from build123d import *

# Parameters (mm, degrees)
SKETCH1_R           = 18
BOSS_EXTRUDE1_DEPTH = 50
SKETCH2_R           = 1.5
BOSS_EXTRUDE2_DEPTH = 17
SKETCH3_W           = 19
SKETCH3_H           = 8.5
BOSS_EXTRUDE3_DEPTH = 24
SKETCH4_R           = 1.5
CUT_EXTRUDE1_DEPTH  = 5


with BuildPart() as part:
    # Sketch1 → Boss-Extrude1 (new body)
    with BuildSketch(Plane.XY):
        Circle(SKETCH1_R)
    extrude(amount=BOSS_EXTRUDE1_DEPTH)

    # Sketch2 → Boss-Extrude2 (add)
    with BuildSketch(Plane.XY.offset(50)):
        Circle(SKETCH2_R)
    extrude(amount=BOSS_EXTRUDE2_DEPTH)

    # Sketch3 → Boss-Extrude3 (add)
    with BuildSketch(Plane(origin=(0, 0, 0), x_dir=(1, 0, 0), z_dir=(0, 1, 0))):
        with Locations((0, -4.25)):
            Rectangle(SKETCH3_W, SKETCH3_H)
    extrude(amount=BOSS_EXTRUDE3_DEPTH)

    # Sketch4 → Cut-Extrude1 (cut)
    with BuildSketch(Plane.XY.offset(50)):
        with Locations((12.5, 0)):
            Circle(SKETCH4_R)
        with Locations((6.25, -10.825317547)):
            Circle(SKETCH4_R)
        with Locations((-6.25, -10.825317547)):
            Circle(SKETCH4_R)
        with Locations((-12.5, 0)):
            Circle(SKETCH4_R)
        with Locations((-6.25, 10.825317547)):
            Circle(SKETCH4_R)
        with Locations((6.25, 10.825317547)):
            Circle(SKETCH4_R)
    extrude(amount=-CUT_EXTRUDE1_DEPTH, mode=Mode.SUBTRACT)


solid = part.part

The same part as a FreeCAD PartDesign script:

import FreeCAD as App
import Part
import Sketcher
Q = App.Units.Quantity

doc = App.newDocument("Part")
body = doc.addObject("PartDesign::Body", "Body")

# Sketch on XY plane
sketch1 = body.newObject("Sketcher::SketchObject", "Sketch")
sketch1.AttachmentSupport = (doc.getObject("XY_Plane"), [""])
sketch1.MapMode = "FlatFace"
sketch1.addGeometry(Part.Circle(App.Vector(0, 0, 0), App.Vector(0, 0, 1), 18), False)
sketch1.addConstraint(Sketcher.Constraint("Coincident", 0, 3, -1, 1))
sketch1.addConstraint(Sketcher.Constraint("Diameter", 0, Q("36 mm")))
pad1 = body.newObject("PartDesign::Pad", "Pad")
pad1.Profile = sketch1
pad1.Length = 50

# Sketch on XY plane
sketch2 = body.newObject("Sketcher::SketchObject", "Sketch001")
sketch2.AttachmentSupport = (doc.getObject("XY_Plane"), [""])
sketch2.MapMode = "FlatFace"
sketch2.AttachmentOffset = App.Placement(App.Vector(0, 0, 50), App.Rotation())
sketch2.addGeometry(Part.Circle(App.Vector(0, 0, 0), App.Vector(0, 0, 1), 1.5), False)
sketch2.addConstraint(Sketcher.Constraint("Coincident", 0, 3, -1, 1))
sketch2.addConstraint(Sketcher.Constraint("Diameter", 0, Q("3 mm")))
pad2 = body.newObject("PartDesign::Pad", "Pad001")
pad2.Profile = sketch2
pad2.Length = 17

# Sketch on XZ plane
sketch3 = body.newObject("Sketcher::SketchObject", "Sketch002")
sketch3.AttachmentSupport = (doc.getObject("XZ_Plane"), [""])
sketch3.MapMode = "FlatFace"
sketch3.addGeometry(Part.LineSegment(App.Vector(-10, 0, 0), App.Vector(-10, 8, 0)), False)
sketch3.addGeometry(Part.LineSegment(App.Vector(-10, 8, 0), App.Vector(10, 8, 0)), False)
sketch3.addGeometry(Part.LineSegment(App.Vector(10, 8, 0), App.Vector(10, 0, 0)), False)
sketch3.addGeometry(Part.LineSegment(App.Vector(10, 0, 0), App.Vector(-10, 0, 0)), False)
sketch3.addConstraint(Sketcher.Constraint("Coincident", 0, 2, 1, 1))
sketch3.addConstraint(Sketcher.Constraint("Coincident", 1, 2, 2, 1))
sketch3.addConstraint(Sketcher.Constraint("Coincident", 2, 2, 3, 1))
sketch3.addConstraint(Sketcher.Constraint("Coincident", 3, 2, 0, 1))
sketch3.addConstraint(Sketcher.Constraint("Vertical", 0))
sketch3.addConstraint(Sketcher.Constraint("Horizontal", 1))
sketch3.addConstraint(Sketcher.Constraint("Vertical", 2))
sketch3.addConstraint(Sketcher.Constraint("Horizontal", 3))
sketch3.addConstraint(Sketcher.Constraint("Symmetric", 2, 2, 3, 2, -1, 1))
sketch3.addConstraint(Sketcher.Constraint("DistanceX", 1, 1, 1, 2, Q("19 mm")))
sketch3.addConstraint(Sketcher.Constraint("DistanceY", 0, 1, 0, 2, Q("8.5 mm")))
pad3 = body.newObject("PartDesign::Pad", "Pad002")
pad3.Profile = sketch3
pad3.Length = 24
pad3.Reversed = True

# Sketch on XY plane
sketch4 = body.newObject("Sketcher::SketchObject", "Sketch003")
sketch4.AttachmentSupport = (doc.getObject("XY_Plane"), [""])
sketch4.MapMode = "FlatFace"
sketch4.AttachmentOffset = App.Placement(App.Vector(0, 0, 50), App.Rotation())
sketch4.addGeometry(Part.Circle(App.Vector(12.5, 0, 0), App.Vector(0, 0, 1), 1.5), False)
sketch4.addGeometry(Part.Circle(App.Vector(6.2, -10.8, 0), App.Vector(0, 0, 1), 1.5), False)
sketch4.addGeometry(Part.Circle(App.Vector(-6.2, -10.8, 0), App.Vector(0, 0, 1), 1.5), False)
sketch4.addGeometry(Part.Circle(App.Vector(-12.5, 0, 0), App.Vector(0, 0, 1), 1.5), False)
sketch4.addGeometry(Part.Circle(App.Vector(-6.2, 10.8, 0), App.Vector(0, 0, 1), 1.5), False)
sketch4.addGeometry(Part.Circle(App.Vector(6.2, 10.8, 0), App.Vector(0, 0, 1), 1.5), False)
sketch4.addConstraint(Sketcher.Constraint("Equal", 0, 1))
sketch4.addConstraint(Sketcher.Constraint("Equal", 1, 2))
sketch4.addConstraint(Sketcher.Constraint("Equal", 2, 3))
sketch4.addConstraint(Sketcher.Constraint("Equal", 3, 4))
sketch4.addConstraint(Sketcher.Constraint("Equal", 4, 5))
sketch4.addConstraint(Sketcher.Constraint("Symmetric", 0, 3, 3, 3, -1, 1))
sketch4.addConstraint(Sketcher.Constraint("Symmetric", 1, 3, 4, 3, -1, 1))
sketch4.addConstraint(Sketcher.Constraint("Symmetric", 2, 3, 5, 3, -1, 1))
sketch4.addConstraint(Sketcher.Constraint("Symmetric", 1, 3, 2, 3, -2))
sketch4.addConstraint(Sketcher.Constraint("PointOnObject", 0, 3, -1))
sketch4.addConstraint(Sketcher.Constraint("Diameter", 0, Q("3 mm")))
sketch4.addConstraint(Sketcher.Constraint("DistanceX", 3, 3, 0, 3, Q("25 mm")))
sketch4.addConstraint(Sketcher.Constraint("DistanceX", 2, 3, 1, 3, Q("12.5 mm")))
sketch4.addConstraint(Sketcher.Constraint("DistanceY", 1, 3, -1, 1, Q("10.825318 mm")))
pocket1 = body.newObject("PartDesign::Pocket", "Pocket")
pocket1.Profile = sketch4
pocket1.Length = 5

doc.recompute()
